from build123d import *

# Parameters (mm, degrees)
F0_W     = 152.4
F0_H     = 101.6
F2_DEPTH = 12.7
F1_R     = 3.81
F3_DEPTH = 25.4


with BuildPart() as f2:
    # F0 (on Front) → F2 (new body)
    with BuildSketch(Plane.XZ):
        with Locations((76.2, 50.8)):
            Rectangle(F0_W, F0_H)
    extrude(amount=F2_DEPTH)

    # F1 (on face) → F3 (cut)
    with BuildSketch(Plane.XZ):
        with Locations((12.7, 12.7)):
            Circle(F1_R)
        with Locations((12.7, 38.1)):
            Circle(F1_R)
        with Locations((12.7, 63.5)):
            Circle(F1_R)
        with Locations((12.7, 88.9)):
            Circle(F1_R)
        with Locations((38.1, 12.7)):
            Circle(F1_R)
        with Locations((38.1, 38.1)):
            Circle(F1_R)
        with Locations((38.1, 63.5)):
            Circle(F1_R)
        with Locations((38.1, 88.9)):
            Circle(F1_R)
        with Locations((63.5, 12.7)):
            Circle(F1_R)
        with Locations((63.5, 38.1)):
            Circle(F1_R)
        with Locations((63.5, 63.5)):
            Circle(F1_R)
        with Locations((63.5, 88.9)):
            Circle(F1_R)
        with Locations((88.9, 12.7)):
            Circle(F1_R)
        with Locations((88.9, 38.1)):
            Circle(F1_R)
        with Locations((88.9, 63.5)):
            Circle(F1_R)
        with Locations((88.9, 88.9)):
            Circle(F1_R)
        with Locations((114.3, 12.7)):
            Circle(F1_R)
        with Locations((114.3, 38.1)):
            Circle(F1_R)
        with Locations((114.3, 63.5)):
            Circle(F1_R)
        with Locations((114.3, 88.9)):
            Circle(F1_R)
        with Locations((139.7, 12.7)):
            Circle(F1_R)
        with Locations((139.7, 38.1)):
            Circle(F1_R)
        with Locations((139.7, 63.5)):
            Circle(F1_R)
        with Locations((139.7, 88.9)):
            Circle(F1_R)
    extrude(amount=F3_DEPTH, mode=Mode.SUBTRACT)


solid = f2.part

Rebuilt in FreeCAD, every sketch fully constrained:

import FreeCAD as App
import Part
import Sketcher
Q = App.Units.Quantity

doc = App.newDocument("Part")
body = doc.addObject("PartDesign::Body", "Body")

# Sketch on XZ plane
sketch1 = body.newObject("Sketcher::SketchObject", "Sketch")
sketch1.AttachmentSupport = (doc.getObject("XZ_Plane"), [""])
sketch1.MapMode = "FlatFace"
sketch1.addGeometry(Part.LineSegment(App.Vector(0, 101.6, 0), App.Vector(0, 0, 0)), False)
sketch1.addGeometry(Part.LineSegment(App.Vector(0, 0, 0), App.Vector(152.4, 0, 0)), False)
sketch1.addGeometry(Part.LineSegment(App.Vector(152.4, 0, 0), App.Vector(152.4, 101.6, 0)), False)
sketch1.addGeometry(Part.LineSegment(App.Vector(152.4, 101.6, 0), App.Vector(0, 101.6, 0)), False)
sketch1.addConstraint(Sketcher.Constraint("Coincident", 0, 2, 1, 1))
sketch1.addConstraint(Sketcher.Constraint("Coincident", 1, 2, 2, 1))
sketch1.addConstraint(Sketcher.Constraint("Coincident", 2, 2, 3, 1))
sketch1.addConstraint(Sketcher.Constraint("Coincident", 3, 2, 0, 1))
sketch1.addConstraint(Sketcher.Constraint("Vertical", 0))
sketch1.addConstraint(Sketcher.Constraint("Horizontal", 1))
sketch1.addConstraint(Sketcher.Constraint("Vertical", 2))
sketch1.addConstraint(Sketcher.Constraint("Horizontal", 3))
sketch1.addConstraint(Sketcher.Constraint("Coincident", 0, 2, -1, 1))
sketch1.addConstraint(Sketcher.Constraint("DistanceX", 1, 1, 1, 2, Q("6 in")))
sketch1.addConstraint(Sketcher.Constraint("DistanceY", 0, 2, 0, 1, Q("4 in")))
pad1 = body.newObject("PartDesign::Pad", "Pad")
pad1.Profile = sketch1
pad1.Length = Q("0.5 in")

# Sketch on XZ plane
sketch2 = body.newObject("Sketcher::SketchObject", "Sketch001")
sketch2.AttachmentSupport = (doc.getObject("XZ_Plane"), [""])
sketch2.MapMode = "FlatFace"
sketch2.addGeometry(Part.Circle(App.Vector(12.7, 12.7, 0), App.Vector(0, 0, 1), 3.81), False)
sketch2.addGeometry(Part.Circle(App.Vector(12.7, 38.1, 0), App.Vector(0, 0, 1), 3.81), False)
sketch2.addGeometry(Part.Circle(App.Vector(12.7, 63.5, 0), App.Vector(0, 0, 1), 3.81), False)
sketch2.addGeometry(Part.Circle(App.Vector(12.7, 88.9, 0), App.Vector(0, 0, 1), 3.81), False)
sketch2.addGeometry(Part.Circle(App.Vector(38.1, 12.7, 0), App.Vector(0, 0, 1), 3.81), False)
sketch2.addGeometry(Part.Circle(App.Vector(38.1, 38.1, 0), App.Vector(0, 0, 1), 3.81), False)
sketch2.addGeometry(Part.Circle(App.Vector(38.1, 63.5, 0), App.Vector(0, 0, 1), 3.81), False)
sketch2.addGeometry(Part.Circle(App.Vector(38.1, 88.9, 0), App.Vector(0, 0, 1), 3.81), False)
sketch2.addGeometry(Part.Circle(App.Vector(63.5, 12.7, 0), App.Vector(0, 0, 1), 3.81), False)
sketch2.addGeometry(Part.Circle(App.Vector(63.5, 38.1, 0), App.Vector(0, 0, 1), 3.81), False)
sketch2.addGeometry(Part.Circle(App.Vector(63.5, 63.5, 0), App.Vector(0, 0, 1), 3.81), False)
sketch2.addGeometry(Part.Circle(App.Vector(63.5, 88.9, 0), App.Vector(0, 0, 1), 3.81), False)
sketch2.addGeometry(Part.Circle(App.Vector(88.9, 12.7, 0), App.Vector(0, 0, 1), 3.81), False)
sketch2.addGeometry(Part.Circle(App.Vector(88.9, 38.1, 0), App.Vector(0, 0, 1), 3.81), False)
sketch2.addGeometry(Part.Circle(App.Vector(88.9, 63.5, 0), App.Vector(0, 0, 1), 3.81), False)
sketch2.addGeometry(Part.Circle(App.Vector(88.9, 88.9, 0), App.Vector(0, 0, 1), 3.81), False)
sketch2.addGeometry(Part.Circle(App.Vector(114.3, 12.7, 0), App.Vector(0, 0, 1), 3.81), False)
sketch2.addGeometry(Part.Circle(App.Vector(114.3, 38.1, 0), App.Vector(0, 0, 1), 3.81), False)
sketch2.addGeometry(Part.Circle(App.Vector(114.3, 63.5, 0), App.Vector(0, 0, 1), 3.81), False)
sketch2.addGeometry(Part.Circle(App.Vector(114.3, 88.9, 0), App.Vector(0, 0, 1), 3.81), False)
sketch2.addGeometry(Part.Circle(App.Vector(139.7, 12.7, 0), App.Vector(0, 0, 1), 3.81), False)
sketch2.addGeometry(Part.Circle(App.Vector(139.7, 38.1, 0), App.Vector(0, 0, 1), 3.81), False)
sketch2.addGeometry(Part.Circle(App.Vector(139.7, 63.5, 0), App.Vector(0, 0, 1), 3.81), False)
sketch2.addGeometry(Part.Circle(App.Vector(139.7, 88.9, 0), App.Vector(0, 0, 1), 3.81), False)
sketch2.addConstraint(Sketcher.Constraint("Equal", 0, 1))
sketch2.addConstraint(Sketcher.Constraint("Equal", 1, 2))
sketch2.addConstraint(Sketcher.Constraint("Equal", 2, 3))
sketch2.addConstraint(Sketcher.Constraint("Equal", 3, 4))
sketch2.addConstraint(Sketcher.Constraint("Equal", 4, 5))
sketch2.addConstraint(Sketcher.Constraint("Equal", 5, 6))
sketch2.addConstraint(Sketcher.Constraint("Equal", 6, 7))
sketch2.addConstraint(Sketcher.Constraint("Equal", 7, 8))
sketch2.addConstraint(Sketcher.Constraint("Equal", 8, 9))
sketch2.addConstraint(Sketcher.Constraint("Equal", 9, 10))
sketch2.addConstraint(Sketcher.Constraint("Equal", 10, 11))
sketch2.addConstraint(Sketcher.Constraint("Equal", 11, 12))
sketch2.addConstraint(Sketcher.Constraint("Equal", 12, 13))
sketch2.addConstraint(Sketcher.Constraint("Equal", 13, 14))
sketch2.addConstraint(Sketcher.Constraint("Equal", 14, 15))
sketch2.addConstraint(Sketcher.Constraint("Equal", 15, 16))
sketch2.addConstraint(Sketcher.Constraint("Equal", 16, 17))
sketch2.addConstraint(Sketcher.Constraint("Equal", 17, 18))
sketch2.addConstraint(Sketcher.Constraint("Equal", 18, 19))
sketch2.addConstraint(Sketcher.Constraint("Equal", 19, 20))
sketch2.addConstraint(Sketcher.Constraint("Equal", 20, 21))
sketch2.addConstraint(Sketcher.Constraint("Equal", 21, 22))
sketch2.addConstraint(Sketcher.Constraint("Equal", 22, 23))
sketch2.addConstraint(Sketcher.Constraint("Horizontal", 0, 3, 4, 3))
sketch2.addConstraint(Sketcher.Constraint("Horizontal", 1, 3, 5, 3))
sketch2.addConstraint(Sketcher.Constraint("Horizontal", 2, 3, 6, 3))
sketch2.addConstraint(Sketcher.Constraint("Horizontal", 3, 3, 7, 3))
sketch2.addConstraint(Sketcher.Constraint("Horizontal", 4, 3, 8, 3))
sketch2.addConstraint(Sketcher.Constraint("Horizontal", 5, 3, 9, 3))
sketch2.addConstraint(Sketcher.Constraint("Horizontal", 6, 3, 10, 3))
sketch2.addConstraint(Sketcher.Constraint("Horizontal", 7, 3, 11, 3))
sketch2.addConstraint(Sketcher.Constraint("Horizontal", 8, 3, 12, 3))
sketch2.addConstraint(Sketcher.Constraint("Horizontal", 9, 3, 13, 3))
sketch2.addConstraint(Sketcher.Constraint("Horizontal", 10, 3, 14, 3))
sketch2.addConstraint(Sketcher.Constraint("Horizontal", 11, 3, 15, 3))
sketch2.addConstraint(Sketcher.Constraint("Horizontal", 12, 3, 16, 3))
sketch2.addConstraint(Sketcher.Constraint("Horizontal", 13, 3, 17, 3))
sketch2.addConstraint(Sketcher.Constraint("Horizontal", 14, 3, 18, 3))
sketch2.addConstraint(Sketcher.Constraint("Horizontal", 15, 3, 19, 3))
sketch2.addConstraint(Sketcher.Constraint("Horizontal", 16, 3, 20, 3))
sketch2.addConstraint(Sketcher.Constraint("Horizontal", 17, 3, 21, 3))
sketch2.addConstraint(Sketcher.Constraint("Horizontal", 18, 3, 22, 3))
sketch2.addConstraint(Sketcher.Constraint("Horizontal", 19, 3, 23, 3))
sketch2.addConstraint(Sketcher.Constraint("Vertical", 0, 3, 1, 3))
sketch2.addConstraint(Sketcher.Constraint("Vertical", 1, 3, 2, 3))
sketch2.addConstraint(Sketcher.Constraint("Vertical", 2, 3, 3, 3))
sketch2.addConstraint(Sketcher.Constraint("Vertical", 4, 3, 5, 3))
sketch2.addConstraint(Sketcher.Constraint("Vertical", 5, 3, 6, 3))
sketch2.addConstraint(Sketcher.Constraint("Vertical", 6, 3, 7, 3))
sketch2.addConstraint(Sketcher.Constraint("Vertical", 8, 3, 9, 3))
sketch2.addConstraint(Sketcher.Constraint("Vertical", 9, 3, 10, 3))
sketch2.addConstraint(Sketcher.Constraint("Vertical", 10, 3, 11, 3))
sketch2.addConstraint(Sketcher.Constraint("Vertical", 12, 3, 13, 3))
sketch2.addConstraint(Sketcher.Constraint("Vertical", 13, 3, 14, 3))
sketch2.addConstraint(Sketcher.Constraint("Vertical", 14, 3, 15, 3))
sketch2.addConstraint(Sketcher.Constraint("Vertical", 16, 3, 17, 3))
sketch2.addConstraint(Sketcher.Constraint("Vertical", 17, 3, 18, 3))
sketch2.addConstraint(Sketcher.Constraint("Vertical", 18, 3, 19, 3))
sketch2.addConstraint(Sketcher.Constraint("Vertical", 20, 3, 21, 3))
sketch2.addConstraint(Sketcher.Constraint("Vertical", 21, 3, 22, 3))
sketch2.addConstraint(Sketcher.Constraint("Vertical", 22, 3, 23, 3))
sketch2.addConstraint(Sketcher.Constraint("Diameter", 0, Q("0.3 in")))
sketch2.addConstraint(Sketcher.Constraint("DistanceY", 0, 3, 1, 3, Q("1 in")))
sketch2.addConstraint(Sketcher.Constraint("DistanceY", 1, 3, 2, 3, Q("1 in")))
sketch2.addConstraint(Sketcher.Constraint("DistanceY", 2, 3, 3, 3, Q("1 in")))
sketch2.addConstraint(Sketcher.Constraint("DistanceX", 0, 3, 4, 3, Q("1 in")))
sketch2.addConstraint(Sketcher.Constraint("DistanceX", 4, 3, 8, 3, Q("1 in")))
sketch2.addConstraint(Sketcher.Constraint("DistanceX", 8, 3, 12, 3, Q("1 in")))
sketch2.addConstraint(Sketcher.Constraint("DistanceX", 12, 3, 16, 3, Q("1 in")))
sketch2.addConstraint(Sketcher.Constraint("DistanceX", 16, 3, 20, 3, Q("1 in")))
sketch2.addConstraint(Sketcher.Constraint("DistanceX", -1, 1, 0, 3, Q("0.5 in")))
sketch2.addConstraint(Sketcher.Constraint("DistanceY", -1, 1, 0, 3, Q("0.5 in")))
pocket1 = body.newObject("PartDesign::Pocket", "Pocket")
pocket1.Profile = sketch2
pocket1.Length = Q("1 in")
pocket1.Reversed = True

doc.recompute()
